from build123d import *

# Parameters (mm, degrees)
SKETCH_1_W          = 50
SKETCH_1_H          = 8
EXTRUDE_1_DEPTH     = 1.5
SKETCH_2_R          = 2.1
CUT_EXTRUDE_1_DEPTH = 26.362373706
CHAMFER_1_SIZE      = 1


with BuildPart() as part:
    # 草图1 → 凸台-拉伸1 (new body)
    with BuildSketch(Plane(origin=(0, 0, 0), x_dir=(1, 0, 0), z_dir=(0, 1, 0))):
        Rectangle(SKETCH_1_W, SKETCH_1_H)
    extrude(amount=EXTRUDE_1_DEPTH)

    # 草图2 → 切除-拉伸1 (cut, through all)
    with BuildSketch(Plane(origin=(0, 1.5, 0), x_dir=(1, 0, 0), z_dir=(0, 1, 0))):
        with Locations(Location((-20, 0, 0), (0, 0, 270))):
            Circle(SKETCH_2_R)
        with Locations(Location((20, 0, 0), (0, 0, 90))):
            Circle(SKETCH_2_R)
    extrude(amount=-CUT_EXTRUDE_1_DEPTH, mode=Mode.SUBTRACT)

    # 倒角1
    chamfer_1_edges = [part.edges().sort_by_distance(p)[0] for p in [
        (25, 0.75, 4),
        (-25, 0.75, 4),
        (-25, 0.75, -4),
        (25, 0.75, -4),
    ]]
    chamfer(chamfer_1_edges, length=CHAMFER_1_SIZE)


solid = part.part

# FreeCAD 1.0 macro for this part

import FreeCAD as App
import Part
import Sketcher

V = App.Vector
Q = App.Units.Quantity


def edges_at(feature, points):
    """Names of the edges that pass closest to the given points."""
    edges = feature.Shape.Edges
    near = lambda p: min(range(len(edges)), key=lambda i: edges[i].distToShape(Part.Vertex(*p))[0])
    return sorted({f"Edge{near(p) + 1}" for p in points})


def add_polygon(sketch, points):
    """Adds a closed chain of lines whose ends are joined by coincident constraints."""
    first, n = sketch.GeometryCount, len(points)
    for a, b in zip(points, points[1:] + points[:1]):
        sketch.addGeometry(Part.LineSegment(App.Vector(*a, 0), App.Vector(*b, 0)), False)
    for i in range(n):
        sketch.addConstraint(Sketcher.Constraint("Coincident", first + i, 2, first + (i + 1) % n, 1))

doc = App.newDocument("Part")
body = doc.addObject("PartDesign::Body", "Body")

# Sketch on XZ plane
sketch1 = doc.addObject("Sketcher::SketchObject", "Sketch")
body.addObject(sketch1)
sketch1.AttachmentSupport = (doc.XZ_Plane, [""])
sketch1.MapMode = "FlatFace"
add_polygon(sketch1, [(-25, -4), (-25, 4), (25, 4), (25, -4)])  # lines 0-3
sketch1.addConstraint([
    Sketcher.Constraint("Vertical", 0),
    Sketcher.Constraint("Horizontal", 1),
    Sketcher.Constraint("Vertical", 2),
    Sketcher.Constraint("Horizontal", 3),
    Sketcher.Constraint("Symmetric", 0, 2, 2, 2, -1, 1),
    Sketcher.Constraint("DistanceX", 1, 1, 1, 2, Q("50 mm")),
    Sketcher.Constraint("DistanceY", 0, 1, 0, 2, Q("8 mm")),
])
pad1 = doc.addObject("PartDesign::Pad", "Pad")
body.addObject(pad1)
pad1.Profile = sketch1
pad1.Length = 1.5
pad1.Reversed = True

# Sketch on XZ plane
sketch2 = doc.addObject("Sketcher::SketchObject", "Sketch001")
body.addObject(sketch2)
sketch2.AttachmentSupport = (doc.XZ_Plane, [""])
sketch2.MapMode = "FlatFace"
sketch2.AttachmentOffset = App.Placement(V(0, 0, -1.5), App.Rotation())
sketch2.addGeometry([
    Part.Circle(V(-20, 0, 0), V(0, 0, 1), 2.1),
    Part.Circle(V(20, 0, 0), V(0, 0, 1), 2.1),
], False)
sketch2.addConstraint([
    Sketcher.Constraint("Equal", 0, 1),
    Sketcher.Constraint("Symmetric", 0, 3, 1, 3, -1, 1),
    Sketcher.Constraint("PointOnObject", 0, 3, -1),
    Sketcher.Constraint("Diameter", 0, Q("4.2 mm")),
    Sketcher.Constraint("DistanceX", 0, 3, -1, 1, Q("20 mm")),
])
pocket1 = doc.addObject("PartDesign::Pocket", "Pocket")
body.addObject(pocket1)
pocket1.Profile = sketch2
pocket1.Type = "ThroughAll"
pocket1.Reversed = True
doc.recompute()

chamfer = doc.addObject("PartDesign::Chamfer", "Chamfer")
body.addObject(chamfer)
chamfer.Base = (pocket1, edges_at(pocket1, [
    (25, 0.75, 4),
    (-25, 0.75, 4),
    (-25, 0.75, -4),
    (25, 0.75, -4),
]))
chamfer.Size = 1

doc.recompute()
